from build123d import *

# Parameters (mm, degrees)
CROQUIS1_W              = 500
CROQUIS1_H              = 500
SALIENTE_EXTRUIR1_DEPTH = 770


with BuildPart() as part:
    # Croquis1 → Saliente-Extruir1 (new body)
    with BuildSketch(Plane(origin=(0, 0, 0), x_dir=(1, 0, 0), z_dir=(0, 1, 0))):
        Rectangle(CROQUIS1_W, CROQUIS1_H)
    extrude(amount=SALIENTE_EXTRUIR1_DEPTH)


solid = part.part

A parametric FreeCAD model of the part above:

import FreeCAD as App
import Part
import Sketcher
from FreeCAD import Vector

doc = App.newDocument("Part")
params = doc.addObject("Spreadsheet::Sheet", "Params")
for row, (alias, value) in enumerate([
    ("sketch1_width", "500 mm"),
    ("pad1_length", "770 mm"),
], start=1):
    params.set(f"A{row}", alias)
    params.set(f"B{row}", "=" + value)
    params.setAlias(f"B{row}", alias)

body = doc.addObject("PartDesign::Body", "Body")

# Sketch on XZ plane
sketch1 = body.newObject("Sketcher::SketchObject", "Sketch")
sketch1.AttachmentSupport = (doc.getObject("XZ_Plane"), [""])
sketch1.MapMode = "FlatFace"
sketch1.addGeometry([
    Part.LineSegment(Vector(-250, -250, 0), Vector(-250, 250, 0)),
    Part.LineSegment(Vector(-250, 250, 0), Vector(250, 250, 0)),
    Part.LineSegment(Vector(250, 250, 0), Vector(250, -250, 0)),
    Part.LineSegment(Vector(250, -250, 0), Vector(-250, -250, 0)),
], False)
sketch1.addConstraint([
    Sketcher.Constraint("Coincident", 0, 2, 1, 1),
    Sketcher.Constraint("Coincident", 1, 2, 2, 1),
    Sketcher.Constraint("Coincident", 2, 2, 3, 1),
    Sketcher.Constraint("Coincident", 3, 2, 0, 1),
    Sketcher.Constraint("Vertical", 0),
    Sketcher.Constraint("Horizontal", 1),
    Sketcher.Constraint("Vertical", 2),
    Sketcher.Constraint("Horizontal", 3),
    Sketcher.Constraint("Symmetric", 0, 2, 2, 2, -1, 1),
    Sketcher.Constraint("Equal", 3, 0),
    Sketcher.Constraint("DistanceX", 1, 1, 1, 2, 500.0),
])
sketch1.setExpression("Constraints[10]", "Params.sketch1_width")
pad1 = body.newObject("PartDesign::Pad", "Pad")
pad1.Profile = sketch1
pad1.setExpression("Length", "Params.pad1_length")
pad1.Reversed = True

doc.recompute()
